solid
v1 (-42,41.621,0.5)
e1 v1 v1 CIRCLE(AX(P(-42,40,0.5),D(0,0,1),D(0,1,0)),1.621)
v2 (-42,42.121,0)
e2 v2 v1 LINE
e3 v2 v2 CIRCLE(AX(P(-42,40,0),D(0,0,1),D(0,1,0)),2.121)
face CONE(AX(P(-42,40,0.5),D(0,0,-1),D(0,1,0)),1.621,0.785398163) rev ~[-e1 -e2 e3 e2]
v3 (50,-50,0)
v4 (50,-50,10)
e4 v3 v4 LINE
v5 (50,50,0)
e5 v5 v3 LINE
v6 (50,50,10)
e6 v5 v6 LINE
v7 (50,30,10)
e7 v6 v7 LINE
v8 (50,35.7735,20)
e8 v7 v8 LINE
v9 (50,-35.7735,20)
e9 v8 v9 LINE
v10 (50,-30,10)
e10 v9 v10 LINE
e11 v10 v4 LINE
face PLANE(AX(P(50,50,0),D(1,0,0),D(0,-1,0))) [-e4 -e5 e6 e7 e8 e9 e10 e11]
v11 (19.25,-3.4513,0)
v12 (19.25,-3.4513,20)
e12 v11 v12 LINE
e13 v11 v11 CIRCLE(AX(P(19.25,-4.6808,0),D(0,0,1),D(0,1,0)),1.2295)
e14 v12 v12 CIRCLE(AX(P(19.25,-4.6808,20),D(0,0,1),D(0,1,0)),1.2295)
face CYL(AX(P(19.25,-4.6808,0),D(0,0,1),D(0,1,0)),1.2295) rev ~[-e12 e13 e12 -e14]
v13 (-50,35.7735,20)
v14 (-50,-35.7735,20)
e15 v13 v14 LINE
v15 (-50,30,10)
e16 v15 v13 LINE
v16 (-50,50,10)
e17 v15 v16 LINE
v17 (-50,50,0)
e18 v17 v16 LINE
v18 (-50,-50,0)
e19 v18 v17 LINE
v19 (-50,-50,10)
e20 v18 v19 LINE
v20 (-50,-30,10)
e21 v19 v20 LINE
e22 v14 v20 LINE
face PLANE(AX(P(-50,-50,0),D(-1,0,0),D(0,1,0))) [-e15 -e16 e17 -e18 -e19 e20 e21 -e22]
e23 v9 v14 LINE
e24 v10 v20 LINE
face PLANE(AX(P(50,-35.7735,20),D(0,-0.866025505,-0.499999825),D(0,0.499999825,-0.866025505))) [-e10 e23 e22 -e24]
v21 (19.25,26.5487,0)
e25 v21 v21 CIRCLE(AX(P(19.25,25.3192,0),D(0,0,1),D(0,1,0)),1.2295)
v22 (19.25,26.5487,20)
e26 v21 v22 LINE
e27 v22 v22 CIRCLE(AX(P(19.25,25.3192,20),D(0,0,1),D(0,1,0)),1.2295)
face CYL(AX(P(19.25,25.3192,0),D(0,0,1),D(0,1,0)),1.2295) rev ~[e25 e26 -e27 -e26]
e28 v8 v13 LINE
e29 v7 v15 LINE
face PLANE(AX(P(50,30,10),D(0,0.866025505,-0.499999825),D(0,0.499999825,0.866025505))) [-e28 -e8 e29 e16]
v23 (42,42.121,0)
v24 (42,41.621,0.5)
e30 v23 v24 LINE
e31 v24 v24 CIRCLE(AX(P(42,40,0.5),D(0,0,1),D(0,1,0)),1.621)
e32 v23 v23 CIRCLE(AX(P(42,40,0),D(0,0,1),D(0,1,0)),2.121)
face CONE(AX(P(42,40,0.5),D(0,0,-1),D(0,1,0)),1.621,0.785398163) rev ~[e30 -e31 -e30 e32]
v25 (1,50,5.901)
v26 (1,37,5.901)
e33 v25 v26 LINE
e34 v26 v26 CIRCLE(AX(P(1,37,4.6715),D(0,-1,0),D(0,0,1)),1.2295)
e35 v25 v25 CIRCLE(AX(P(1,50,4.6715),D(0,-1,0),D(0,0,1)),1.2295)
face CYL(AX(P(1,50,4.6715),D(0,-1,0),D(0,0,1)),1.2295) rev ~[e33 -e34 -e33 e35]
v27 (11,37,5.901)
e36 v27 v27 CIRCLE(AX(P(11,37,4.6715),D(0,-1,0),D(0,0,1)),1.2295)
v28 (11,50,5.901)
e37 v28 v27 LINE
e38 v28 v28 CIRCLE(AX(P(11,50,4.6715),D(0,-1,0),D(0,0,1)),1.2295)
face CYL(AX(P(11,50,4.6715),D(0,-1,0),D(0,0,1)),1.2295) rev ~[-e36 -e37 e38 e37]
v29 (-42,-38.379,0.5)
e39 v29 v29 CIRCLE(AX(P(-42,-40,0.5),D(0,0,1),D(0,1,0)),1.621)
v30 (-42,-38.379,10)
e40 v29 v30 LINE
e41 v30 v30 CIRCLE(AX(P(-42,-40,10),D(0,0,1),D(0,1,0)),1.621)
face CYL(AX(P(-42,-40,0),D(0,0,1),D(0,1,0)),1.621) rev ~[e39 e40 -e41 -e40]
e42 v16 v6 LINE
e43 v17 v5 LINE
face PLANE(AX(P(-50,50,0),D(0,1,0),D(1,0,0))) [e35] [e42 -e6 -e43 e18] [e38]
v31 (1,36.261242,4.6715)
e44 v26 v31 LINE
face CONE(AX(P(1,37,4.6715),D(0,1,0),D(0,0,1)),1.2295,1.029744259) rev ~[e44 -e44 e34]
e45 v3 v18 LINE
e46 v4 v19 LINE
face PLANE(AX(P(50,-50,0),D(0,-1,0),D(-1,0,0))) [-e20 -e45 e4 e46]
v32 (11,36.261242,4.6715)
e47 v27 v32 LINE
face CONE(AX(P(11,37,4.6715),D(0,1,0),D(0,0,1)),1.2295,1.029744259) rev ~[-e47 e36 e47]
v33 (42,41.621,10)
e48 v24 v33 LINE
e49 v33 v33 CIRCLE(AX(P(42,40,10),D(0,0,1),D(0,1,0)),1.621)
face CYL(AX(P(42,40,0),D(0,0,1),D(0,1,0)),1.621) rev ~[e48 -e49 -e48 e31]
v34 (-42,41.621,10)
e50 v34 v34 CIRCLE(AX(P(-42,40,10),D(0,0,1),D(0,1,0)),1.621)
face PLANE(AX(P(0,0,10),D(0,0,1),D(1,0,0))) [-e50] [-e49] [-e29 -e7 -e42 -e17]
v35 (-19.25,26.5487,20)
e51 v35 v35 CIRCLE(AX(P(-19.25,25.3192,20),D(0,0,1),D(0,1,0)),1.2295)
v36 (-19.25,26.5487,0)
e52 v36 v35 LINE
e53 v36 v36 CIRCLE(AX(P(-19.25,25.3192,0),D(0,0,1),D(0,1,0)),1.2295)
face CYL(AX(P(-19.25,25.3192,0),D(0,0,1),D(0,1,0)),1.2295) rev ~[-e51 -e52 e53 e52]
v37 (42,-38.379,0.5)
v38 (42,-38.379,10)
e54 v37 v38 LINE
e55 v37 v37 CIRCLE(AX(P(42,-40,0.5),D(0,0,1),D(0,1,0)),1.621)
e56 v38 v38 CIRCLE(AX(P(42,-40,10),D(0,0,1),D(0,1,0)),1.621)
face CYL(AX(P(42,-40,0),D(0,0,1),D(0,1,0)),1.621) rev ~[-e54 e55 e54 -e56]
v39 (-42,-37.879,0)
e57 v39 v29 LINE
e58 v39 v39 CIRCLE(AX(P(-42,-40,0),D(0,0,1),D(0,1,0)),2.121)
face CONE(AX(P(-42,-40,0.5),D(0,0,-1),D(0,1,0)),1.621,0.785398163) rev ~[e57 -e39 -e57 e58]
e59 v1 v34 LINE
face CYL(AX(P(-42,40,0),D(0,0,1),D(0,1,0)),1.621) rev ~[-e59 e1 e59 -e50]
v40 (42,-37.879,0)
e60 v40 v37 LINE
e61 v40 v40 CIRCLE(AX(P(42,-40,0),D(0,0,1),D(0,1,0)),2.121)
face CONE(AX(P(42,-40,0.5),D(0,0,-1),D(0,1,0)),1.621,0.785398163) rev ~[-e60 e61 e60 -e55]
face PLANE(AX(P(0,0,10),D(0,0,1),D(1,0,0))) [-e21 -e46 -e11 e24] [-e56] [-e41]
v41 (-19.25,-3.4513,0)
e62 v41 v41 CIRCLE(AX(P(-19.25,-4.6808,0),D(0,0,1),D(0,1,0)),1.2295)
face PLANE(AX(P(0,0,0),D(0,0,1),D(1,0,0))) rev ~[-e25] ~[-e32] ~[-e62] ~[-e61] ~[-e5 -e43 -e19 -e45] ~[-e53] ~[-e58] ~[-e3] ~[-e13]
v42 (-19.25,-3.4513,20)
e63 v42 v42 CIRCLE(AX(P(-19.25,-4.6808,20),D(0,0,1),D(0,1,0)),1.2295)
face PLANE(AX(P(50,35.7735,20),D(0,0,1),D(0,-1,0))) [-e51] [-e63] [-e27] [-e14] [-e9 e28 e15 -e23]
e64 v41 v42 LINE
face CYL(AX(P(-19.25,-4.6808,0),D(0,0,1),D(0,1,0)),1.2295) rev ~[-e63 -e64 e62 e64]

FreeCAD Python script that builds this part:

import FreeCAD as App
import Part
import Sketcher
from FreeCAD import Vector
Q = App.Units.Quantity


def edges_at(feature, points):
    """Names of the edges that pass closest to the given points."""
    edges = feature.Shape.Edges
    near = lambda p: min(range(len(edges)), key=lambda i: edges[i].distToShape(Part.Vertex(*p))[0])
    return sorted({f"Edge{near(p) + 1}" for p in points})


def add_polygon(sketch, points):
    """Adds a closed chain of lines whose ends are joined by coincident constraints."""
    first, n = sketch.GeometryCount, len(points)
    for a, b in zip(points, points[1:] + points[:1]):
        sketch.addGeometry(Part.LineSegment(App.Vector(*a, 0), App.Vector(*b, 0)), False)
    for i in range(n):
        sketch.addConstraint(Sketcher.Constraint("Coincident", first + i, 2, first + (i + 1) % n, 1))

doc = App.newDocument("Part")
body = doc.addObject("PartDesign::Body", "Body")

# Sketch on XY plane
sketch1 = body.newObject("Sketcher::SketchObject", "Sketch")
sketch1.AttachmentSupport = (doc.getObject("XY_Plane"), [""])
sketch1.MapMode = "FlatFace"
add_polygon(sketch1, [(50, 50), (-50, 50), (-50, -50), (50, -50)])  # lines 0-3
sketch1.addConstraint([
    Sketcher.Constraint("Horizontal", 0),
    Sketcher.Constraint("Vertical", 1),
    Sketcher.Constraint("Horizontal", 2),
    Sketcher.Constraint("Vertical", 3),
    Sketcher.Constraint("Symmetric", 0, 2, 2, 2, -1, 1),
    Sketcher.Constraint("Equal", 2, 1),
    Sketcher.Constraint("DistanceX", 0, 2, 0, 1, Q("100 mm")),
])
pad1 = body.newObject("PartDesign::Pad", "Pad")
pad1.Profile = sketch1
pad1.Length = 10

# Sketch on YZ plane
sketch2 = body.newObject("Sketcher::SketchObject", "Sketch001")
sketch2.AttachmentSupport = (doc.getObject("YZ_Plane"), [""])
sketch2.MapMode = "FlatFace"
sketch2.AttachmentOffset = App.Placement(Vector(0, 0, 50), App.Rotation())
add_polygon(sketch2, [(-30, 10), (30, 10), (36, 20), (-36, 20)])  # lines 0-3
sketch2.addConstraint([
    Sketcher.Constraint("Horizontal", 0),
    Sketcher.Constraint("Horizontal", 2),
    Sketcher.Constraint("Equal", 1, 3),
    Sketcher.Constraint("DistanceX", 0, 1, 0, 2, Q("60 mm")),
    Sketcher.Constraint("Angle", 1, Q("60 deg")),
    Sketcher.Constraint("DistanceY", -1, 1, 0, 2, Q("10 mm")),
    Sketcher.Constraint("DistanceY", -1, 1, 1, 2, Q("20 mm")),
    Sketcher.Constraint("DistanceX", -1, 1, 0, 2, Q("30 mm")),
])
pad2 = body.newObject("PartDesign::Pad", "Pad001")
pad2.Profile = sketch2
pad2.Length = 100
pad2.Reversed = True

# Sketch on XY plane
sketch3 = body.newObject("Sketcher::SketchObject", "Sketch002")
sketch3.AttachmentSupport = (doc.getObject("XY_Plane"), [""])
sketch3.MapMode = "FlatFace"
sketch3.addGeometry([
    Part.Circle(Vector(19.2, 25.3, 0), Vector(0, 0, 1), 1.2),
    Part.Circle(Vector(19.2, -4.7, 0), Vector(0, 0, 1), 1.2),
    Part.Circle(Vector(-19.2, 25.3, 0), Vector(0, 0, 1), 1.2),
    Part.Circle(Vector(-19.2, -4.7, 0), Vector(0, 0, 1), 1.2),
], False)
sketch3.addConstraint([
    Sketcher.Constraint("Equal", 0, 1),
    Sketcher.Constraint("Equal", 1, 2),
    Sketcher.Constraint("Equal", 2, 3),
    Sketcher.Constraint("Symmetric", 0, 3, 2, 3, -2),
    Sketcher.Constraint("Symmetric", 1, 3, 3, 3, -2),
    Sketcher.Constraint("Vertical", 0, 3, 1, 3),
    Sketcher.Constraint("Diameter", 0, Q("2.459 mm")),
    Sketcher.Constraint("DistanceY", 1, 3, 0, 3, Q("30 mm")),
    Sketcher.Constraint("DistanceX", 2, 3, 0, 3, Q("38.5 mm")),
    Sketcher.Constraint("DistanceY", -1, 1, 0, 3, Q("25.3192 mm")),
])
doc.recompute()
hole = body.newObject("PartDesign::Hole", "Hole")
hole.Profile = sketch3
hole.ThreadType = "None"
hole.Diameter = 2.459
hole.DepthType = "ThroughAll"
hole.Reversed = True

# Sketch on XY plane
sketch4 = body.newObject("Sketcher::SketchObject", "Sketch003")
sketch4.AttachmentSupport = (doc.getObject("XY_Plane"), [""])
sketch4.MapMode = "FlatFace"
sketch4.addGeometry([
    Part.Circle(Vector(-42, -40, 0), Vector(0, 0, 1), 1.6),
    Part.Circle(Vector(-42, 40, 0), Vector(0, 0, 1), 1.6),
    Part.Circle(Vector(42, 40, 0), Vector(0, 0, 1), 1.6),
    Part.Circle(Vector(42, -40, 0), Vector(0, 0, 1), 1.6),
], False)
sketch4.addConstraint([
    Sketcher.Constraint("Equal", 0, 1),
    Sketcher.Constraint("Equal", 1, 2),
    Sketcher.Constraint("Equal", 2, 3),
    Sketcher.Constraint("Symmetric", 0, 3, 2, 3, -1, 1),
    Sketcher.Constraint("Symmetric", 1, 3, 3, 3, -1, 1),
    Sketcher.Constraint("Symmetric", 1, 3, 2, 3, -2),
    Sketcher.Constraint("Diameter", 0, Q("3.242 mm")),
    Sketcher.Constraint("DistanceX", 0, 3, -1, 1, Q("42 mm")),
    Sketcher.Constraint("DistanceY", 0, 3, -1, 1, Q("40 mm")),
])
doc.recompute()
hole2 = body.newObject("PartDesign::Hole", "Hole001")
hole2.Profile = sketch4
hole2.ThreadType = "None"
hole2.Diameter = 3.242
hole2.DepthType = "Dimension"
hole2.Depth = 11.8
hole2.DrillPoint = "Angled"
hole2.DrillPointAngle = 118
hole2.Reversed = True
doc.recompute()

chamfer = body.newObject("PartDesign::Chamfer", "Chamfer")
chamfer.Base = (hole2, edges_at(hole2, [
    (-42, -41.621, 0),
    (42, -41.621, 0),
    (-42, 38.379, 0),
    (42, 38.379, 0),
]))
chamfer.Size = 0.5

# Sketch on XZ plane
sketch5 = body.newObject("Sketcher::SketchObject", "Sketch004")
sketch5.AttachmentSupport = (doc.getObject("XZ_Plane"), [""])
sketch5.MapMode = "FlatFace"
sketch5.AttachmentOffset = App.Placement(Vector(0, 0, -50), App.Rotation())
sketch5.addGeometry([
    Part.Circle(Vector(1, 4.7, 0), Vector(0, 0, 1), 1.2),
    Part.Circle(Vector(11, 4.7, 0), Vector(0, 0, 1), 1.2),
], False)
sketch5.addConstraint([
    Sketcher.Constraint("Equal", 0, 1),
    Sketcher.Constraint("Horizontal", 0, 3, 1, 3),
    Sketcher.Constraint("Diameter", 0, Q("2.459 mm")),
    Sketcher.Constraint("DistanceX", -1, 1, 0, 3, Q("1 mm")),
    Sketcher.Constraint("DistanceX", -1, 1, 1, 3, Q("11 mm")),
    Sketcher.Constraint("DistanceY", -1, 1, 0, 3, Q("4.6715 mm")),
])
doc.recompute()
hole3 = body.newObject("PartDesign::Hole", "Hole002")
hole3.Profile = sketch5
hole3.ThreadType = "None"
hole3.Diameter = 2.459
hole3.DepthType = "Dimension"
hole3.Depth = 13
hole3.DrillPoint = "Angled"
hole3.DrillPointAngle = 118
hole3.Reversed = True

doc.recompute()
